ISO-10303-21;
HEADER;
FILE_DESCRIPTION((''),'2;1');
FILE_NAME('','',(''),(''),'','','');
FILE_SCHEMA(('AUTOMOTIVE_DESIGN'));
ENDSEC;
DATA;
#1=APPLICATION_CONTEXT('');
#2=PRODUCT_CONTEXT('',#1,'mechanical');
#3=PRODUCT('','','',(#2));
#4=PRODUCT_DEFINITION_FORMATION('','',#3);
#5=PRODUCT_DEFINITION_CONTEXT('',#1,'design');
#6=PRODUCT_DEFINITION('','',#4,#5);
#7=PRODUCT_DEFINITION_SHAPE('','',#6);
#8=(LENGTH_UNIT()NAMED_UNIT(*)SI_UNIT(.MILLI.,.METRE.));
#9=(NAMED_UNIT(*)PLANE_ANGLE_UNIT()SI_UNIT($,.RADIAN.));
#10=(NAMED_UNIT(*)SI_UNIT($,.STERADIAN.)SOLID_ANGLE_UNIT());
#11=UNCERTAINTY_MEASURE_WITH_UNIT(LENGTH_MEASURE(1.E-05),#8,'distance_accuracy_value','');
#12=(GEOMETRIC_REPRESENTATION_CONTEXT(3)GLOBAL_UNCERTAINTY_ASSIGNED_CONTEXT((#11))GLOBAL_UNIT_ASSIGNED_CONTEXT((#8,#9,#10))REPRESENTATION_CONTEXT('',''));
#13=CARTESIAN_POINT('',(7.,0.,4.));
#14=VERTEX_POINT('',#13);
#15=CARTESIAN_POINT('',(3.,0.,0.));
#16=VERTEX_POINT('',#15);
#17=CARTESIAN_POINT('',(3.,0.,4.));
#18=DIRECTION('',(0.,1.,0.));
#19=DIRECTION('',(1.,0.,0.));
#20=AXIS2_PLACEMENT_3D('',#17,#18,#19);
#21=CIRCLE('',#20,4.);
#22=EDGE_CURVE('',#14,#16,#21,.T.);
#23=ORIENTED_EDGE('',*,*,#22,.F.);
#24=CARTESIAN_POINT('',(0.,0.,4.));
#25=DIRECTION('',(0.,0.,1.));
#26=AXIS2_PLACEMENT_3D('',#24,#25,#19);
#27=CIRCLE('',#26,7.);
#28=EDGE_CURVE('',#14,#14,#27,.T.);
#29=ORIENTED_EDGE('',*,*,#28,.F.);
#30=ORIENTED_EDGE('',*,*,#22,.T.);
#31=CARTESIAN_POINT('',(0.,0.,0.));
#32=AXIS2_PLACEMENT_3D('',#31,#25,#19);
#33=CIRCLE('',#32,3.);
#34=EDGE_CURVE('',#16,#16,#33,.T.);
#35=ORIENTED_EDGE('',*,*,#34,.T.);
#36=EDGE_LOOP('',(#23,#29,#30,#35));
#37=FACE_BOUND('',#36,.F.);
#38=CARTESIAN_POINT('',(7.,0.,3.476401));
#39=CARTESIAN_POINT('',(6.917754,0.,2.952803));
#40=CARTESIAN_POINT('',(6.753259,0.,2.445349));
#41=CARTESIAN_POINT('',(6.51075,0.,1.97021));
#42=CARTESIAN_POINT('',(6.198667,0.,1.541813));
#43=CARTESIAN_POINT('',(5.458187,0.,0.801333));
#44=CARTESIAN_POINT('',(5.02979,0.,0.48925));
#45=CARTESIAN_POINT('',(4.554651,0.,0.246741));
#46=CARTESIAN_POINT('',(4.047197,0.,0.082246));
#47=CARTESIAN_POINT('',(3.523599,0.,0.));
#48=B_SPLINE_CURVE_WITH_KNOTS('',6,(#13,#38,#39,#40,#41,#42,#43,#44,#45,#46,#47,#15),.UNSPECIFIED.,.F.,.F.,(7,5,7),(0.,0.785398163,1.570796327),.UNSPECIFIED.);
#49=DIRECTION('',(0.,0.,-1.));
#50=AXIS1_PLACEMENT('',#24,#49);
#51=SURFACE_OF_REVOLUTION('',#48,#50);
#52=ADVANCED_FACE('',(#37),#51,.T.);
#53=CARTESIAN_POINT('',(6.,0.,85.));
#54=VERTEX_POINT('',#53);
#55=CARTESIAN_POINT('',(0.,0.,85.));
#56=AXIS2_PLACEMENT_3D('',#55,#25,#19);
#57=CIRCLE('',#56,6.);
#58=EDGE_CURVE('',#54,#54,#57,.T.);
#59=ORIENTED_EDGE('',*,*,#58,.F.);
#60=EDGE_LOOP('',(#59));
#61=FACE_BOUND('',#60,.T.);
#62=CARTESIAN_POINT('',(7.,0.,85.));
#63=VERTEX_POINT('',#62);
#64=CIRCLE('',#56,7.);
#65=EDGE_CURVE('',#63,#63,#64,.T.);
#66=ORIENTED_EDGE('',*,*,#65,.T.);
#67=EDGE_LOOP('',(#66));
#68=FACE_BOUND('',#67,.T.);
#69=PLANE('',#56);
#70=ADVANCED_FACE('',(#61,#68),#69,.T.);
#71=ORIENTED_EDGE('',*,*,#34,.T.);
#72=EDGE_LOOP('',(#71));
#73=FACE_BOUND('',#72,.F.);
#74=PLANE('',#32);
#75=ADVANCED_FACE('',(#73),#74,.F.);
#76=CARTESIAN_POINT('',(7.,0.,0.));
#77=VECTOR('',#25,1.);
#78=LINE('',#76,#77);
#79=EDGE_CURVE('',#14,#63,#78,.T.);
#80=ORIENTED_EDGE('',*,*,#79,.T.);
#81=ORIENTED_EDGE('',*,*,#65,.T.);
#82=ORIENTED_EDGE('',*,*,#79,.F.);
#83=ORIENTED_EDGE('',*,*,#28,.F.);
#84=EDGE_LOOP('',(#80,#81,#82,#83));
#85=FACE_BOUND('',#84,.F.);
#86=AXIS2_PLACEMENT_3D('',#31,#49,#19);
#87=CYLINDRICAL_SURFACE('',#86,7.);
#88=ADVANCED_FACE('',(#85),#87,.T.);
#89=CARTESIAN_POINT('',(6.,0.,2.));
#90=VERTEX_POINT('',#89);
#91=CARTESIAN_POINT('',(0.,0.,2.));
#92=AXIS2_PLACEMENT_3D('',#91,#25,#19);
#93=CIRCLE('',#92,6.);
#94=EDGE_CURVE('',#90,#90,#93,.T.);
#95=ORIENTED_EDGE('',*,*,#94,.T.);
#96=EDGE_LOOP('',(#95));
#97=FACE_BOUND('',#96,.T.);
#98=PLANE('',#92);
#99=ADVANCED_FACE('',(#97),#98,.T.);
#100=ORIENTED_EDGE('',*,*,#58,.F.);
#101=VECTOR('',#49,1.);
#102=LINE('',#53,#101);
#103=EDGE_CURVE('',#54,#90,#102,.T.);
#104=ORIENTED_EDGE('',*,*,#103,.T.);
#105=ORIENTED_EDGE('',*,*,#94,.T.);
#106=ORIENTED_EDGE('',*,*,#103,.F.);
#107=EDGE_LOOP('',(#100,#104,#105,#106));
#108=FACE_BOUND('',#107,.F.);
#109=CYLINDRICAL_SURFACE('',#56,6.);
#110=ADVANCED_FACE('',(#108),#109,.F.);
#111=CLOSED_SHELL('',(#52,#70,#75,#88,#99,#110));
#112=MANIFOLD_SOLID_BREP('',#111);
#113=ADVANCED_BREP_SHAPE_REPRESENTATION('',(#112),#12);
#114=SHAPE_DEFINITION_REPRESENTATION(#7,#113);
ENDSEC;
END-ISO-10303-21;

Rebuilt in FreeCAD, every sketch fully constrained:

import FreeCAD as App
import Part
import Sketcher

V = App.Vector
Q = App.Units.Quantity


def edges_at(feature, points):
    """Names of the edges that pass closest to the given points."""
    edges = feature.Shape.Edges
    near = lambda p: min(range(len(edges)), key=lambda i: edges[i].distToShape(Part.Vertex(*p))[0])
    return sorted({f"Edge{near(p) + 1}" for p in points})

doc = App.newDocument("Part")
body = doc.addObject("PartDesign::Body", "Body")

sketch1 = doc.addObject("Sketcher::SketchObject", "Sketch")
body.addObject(sketch1)
sketch1.AttachmentSupport = (doc.XY_Plane, [""])
sketch1.MapMode = "FlatFace"
sketch1.addGeometry(Part.Circle(V(0, 0, 0), V(0, 0, 1), 7), False)
sketch1.addConstraint([
    Sketcher.Constraint("Coincident", 0, 3, -1, 1),
    Sketcher.Constraint("Diameter", 0, Q("14 mm")),
])
pad1 = doc.addObject("PartDesign::Pad", "Pad")
body.addObject(pad1)
pad1.Profile = sketch1
pad1.Length = 85

sketch2 = doc.addObject("Sketcher::SketchObject", "Sketch001")
body.addObject(sketch2)
sketch2.AttachmentSupport = (doc.XY_Plane, [""])
sketch2.MapMode = "FlatFace"
sketch2.AttachmentOffset = App.Placement(V(0, 0, 85), App.Rotation())
sketch2.addGeometry(Part.Circle(V(0, 0, 0), V(0, 0, 1), 6), False)
sketch2.addConstraint([
    Sketcher.Constraint("Coincident", 0, 3, -1, 1),
    Sketcher.Constraint("Diameter", 0, Q("12 mm")),
])
pocket1 = doc.addObject("PartDesign::Pocket", "Pocket")
body.addObject(pocket1)
pocket1.Profile = sketch2
pocket1.Length = 83
doc.recompute()

fillet = doc.addObject("PartDesign::Fillet", "Fillet")
body.addObject(fillet)
fillet.Base = (pocket1, edges_at(pocket1, [(-7, 0, 0)]))
fillet.Radius = 4

doc.recompute()
